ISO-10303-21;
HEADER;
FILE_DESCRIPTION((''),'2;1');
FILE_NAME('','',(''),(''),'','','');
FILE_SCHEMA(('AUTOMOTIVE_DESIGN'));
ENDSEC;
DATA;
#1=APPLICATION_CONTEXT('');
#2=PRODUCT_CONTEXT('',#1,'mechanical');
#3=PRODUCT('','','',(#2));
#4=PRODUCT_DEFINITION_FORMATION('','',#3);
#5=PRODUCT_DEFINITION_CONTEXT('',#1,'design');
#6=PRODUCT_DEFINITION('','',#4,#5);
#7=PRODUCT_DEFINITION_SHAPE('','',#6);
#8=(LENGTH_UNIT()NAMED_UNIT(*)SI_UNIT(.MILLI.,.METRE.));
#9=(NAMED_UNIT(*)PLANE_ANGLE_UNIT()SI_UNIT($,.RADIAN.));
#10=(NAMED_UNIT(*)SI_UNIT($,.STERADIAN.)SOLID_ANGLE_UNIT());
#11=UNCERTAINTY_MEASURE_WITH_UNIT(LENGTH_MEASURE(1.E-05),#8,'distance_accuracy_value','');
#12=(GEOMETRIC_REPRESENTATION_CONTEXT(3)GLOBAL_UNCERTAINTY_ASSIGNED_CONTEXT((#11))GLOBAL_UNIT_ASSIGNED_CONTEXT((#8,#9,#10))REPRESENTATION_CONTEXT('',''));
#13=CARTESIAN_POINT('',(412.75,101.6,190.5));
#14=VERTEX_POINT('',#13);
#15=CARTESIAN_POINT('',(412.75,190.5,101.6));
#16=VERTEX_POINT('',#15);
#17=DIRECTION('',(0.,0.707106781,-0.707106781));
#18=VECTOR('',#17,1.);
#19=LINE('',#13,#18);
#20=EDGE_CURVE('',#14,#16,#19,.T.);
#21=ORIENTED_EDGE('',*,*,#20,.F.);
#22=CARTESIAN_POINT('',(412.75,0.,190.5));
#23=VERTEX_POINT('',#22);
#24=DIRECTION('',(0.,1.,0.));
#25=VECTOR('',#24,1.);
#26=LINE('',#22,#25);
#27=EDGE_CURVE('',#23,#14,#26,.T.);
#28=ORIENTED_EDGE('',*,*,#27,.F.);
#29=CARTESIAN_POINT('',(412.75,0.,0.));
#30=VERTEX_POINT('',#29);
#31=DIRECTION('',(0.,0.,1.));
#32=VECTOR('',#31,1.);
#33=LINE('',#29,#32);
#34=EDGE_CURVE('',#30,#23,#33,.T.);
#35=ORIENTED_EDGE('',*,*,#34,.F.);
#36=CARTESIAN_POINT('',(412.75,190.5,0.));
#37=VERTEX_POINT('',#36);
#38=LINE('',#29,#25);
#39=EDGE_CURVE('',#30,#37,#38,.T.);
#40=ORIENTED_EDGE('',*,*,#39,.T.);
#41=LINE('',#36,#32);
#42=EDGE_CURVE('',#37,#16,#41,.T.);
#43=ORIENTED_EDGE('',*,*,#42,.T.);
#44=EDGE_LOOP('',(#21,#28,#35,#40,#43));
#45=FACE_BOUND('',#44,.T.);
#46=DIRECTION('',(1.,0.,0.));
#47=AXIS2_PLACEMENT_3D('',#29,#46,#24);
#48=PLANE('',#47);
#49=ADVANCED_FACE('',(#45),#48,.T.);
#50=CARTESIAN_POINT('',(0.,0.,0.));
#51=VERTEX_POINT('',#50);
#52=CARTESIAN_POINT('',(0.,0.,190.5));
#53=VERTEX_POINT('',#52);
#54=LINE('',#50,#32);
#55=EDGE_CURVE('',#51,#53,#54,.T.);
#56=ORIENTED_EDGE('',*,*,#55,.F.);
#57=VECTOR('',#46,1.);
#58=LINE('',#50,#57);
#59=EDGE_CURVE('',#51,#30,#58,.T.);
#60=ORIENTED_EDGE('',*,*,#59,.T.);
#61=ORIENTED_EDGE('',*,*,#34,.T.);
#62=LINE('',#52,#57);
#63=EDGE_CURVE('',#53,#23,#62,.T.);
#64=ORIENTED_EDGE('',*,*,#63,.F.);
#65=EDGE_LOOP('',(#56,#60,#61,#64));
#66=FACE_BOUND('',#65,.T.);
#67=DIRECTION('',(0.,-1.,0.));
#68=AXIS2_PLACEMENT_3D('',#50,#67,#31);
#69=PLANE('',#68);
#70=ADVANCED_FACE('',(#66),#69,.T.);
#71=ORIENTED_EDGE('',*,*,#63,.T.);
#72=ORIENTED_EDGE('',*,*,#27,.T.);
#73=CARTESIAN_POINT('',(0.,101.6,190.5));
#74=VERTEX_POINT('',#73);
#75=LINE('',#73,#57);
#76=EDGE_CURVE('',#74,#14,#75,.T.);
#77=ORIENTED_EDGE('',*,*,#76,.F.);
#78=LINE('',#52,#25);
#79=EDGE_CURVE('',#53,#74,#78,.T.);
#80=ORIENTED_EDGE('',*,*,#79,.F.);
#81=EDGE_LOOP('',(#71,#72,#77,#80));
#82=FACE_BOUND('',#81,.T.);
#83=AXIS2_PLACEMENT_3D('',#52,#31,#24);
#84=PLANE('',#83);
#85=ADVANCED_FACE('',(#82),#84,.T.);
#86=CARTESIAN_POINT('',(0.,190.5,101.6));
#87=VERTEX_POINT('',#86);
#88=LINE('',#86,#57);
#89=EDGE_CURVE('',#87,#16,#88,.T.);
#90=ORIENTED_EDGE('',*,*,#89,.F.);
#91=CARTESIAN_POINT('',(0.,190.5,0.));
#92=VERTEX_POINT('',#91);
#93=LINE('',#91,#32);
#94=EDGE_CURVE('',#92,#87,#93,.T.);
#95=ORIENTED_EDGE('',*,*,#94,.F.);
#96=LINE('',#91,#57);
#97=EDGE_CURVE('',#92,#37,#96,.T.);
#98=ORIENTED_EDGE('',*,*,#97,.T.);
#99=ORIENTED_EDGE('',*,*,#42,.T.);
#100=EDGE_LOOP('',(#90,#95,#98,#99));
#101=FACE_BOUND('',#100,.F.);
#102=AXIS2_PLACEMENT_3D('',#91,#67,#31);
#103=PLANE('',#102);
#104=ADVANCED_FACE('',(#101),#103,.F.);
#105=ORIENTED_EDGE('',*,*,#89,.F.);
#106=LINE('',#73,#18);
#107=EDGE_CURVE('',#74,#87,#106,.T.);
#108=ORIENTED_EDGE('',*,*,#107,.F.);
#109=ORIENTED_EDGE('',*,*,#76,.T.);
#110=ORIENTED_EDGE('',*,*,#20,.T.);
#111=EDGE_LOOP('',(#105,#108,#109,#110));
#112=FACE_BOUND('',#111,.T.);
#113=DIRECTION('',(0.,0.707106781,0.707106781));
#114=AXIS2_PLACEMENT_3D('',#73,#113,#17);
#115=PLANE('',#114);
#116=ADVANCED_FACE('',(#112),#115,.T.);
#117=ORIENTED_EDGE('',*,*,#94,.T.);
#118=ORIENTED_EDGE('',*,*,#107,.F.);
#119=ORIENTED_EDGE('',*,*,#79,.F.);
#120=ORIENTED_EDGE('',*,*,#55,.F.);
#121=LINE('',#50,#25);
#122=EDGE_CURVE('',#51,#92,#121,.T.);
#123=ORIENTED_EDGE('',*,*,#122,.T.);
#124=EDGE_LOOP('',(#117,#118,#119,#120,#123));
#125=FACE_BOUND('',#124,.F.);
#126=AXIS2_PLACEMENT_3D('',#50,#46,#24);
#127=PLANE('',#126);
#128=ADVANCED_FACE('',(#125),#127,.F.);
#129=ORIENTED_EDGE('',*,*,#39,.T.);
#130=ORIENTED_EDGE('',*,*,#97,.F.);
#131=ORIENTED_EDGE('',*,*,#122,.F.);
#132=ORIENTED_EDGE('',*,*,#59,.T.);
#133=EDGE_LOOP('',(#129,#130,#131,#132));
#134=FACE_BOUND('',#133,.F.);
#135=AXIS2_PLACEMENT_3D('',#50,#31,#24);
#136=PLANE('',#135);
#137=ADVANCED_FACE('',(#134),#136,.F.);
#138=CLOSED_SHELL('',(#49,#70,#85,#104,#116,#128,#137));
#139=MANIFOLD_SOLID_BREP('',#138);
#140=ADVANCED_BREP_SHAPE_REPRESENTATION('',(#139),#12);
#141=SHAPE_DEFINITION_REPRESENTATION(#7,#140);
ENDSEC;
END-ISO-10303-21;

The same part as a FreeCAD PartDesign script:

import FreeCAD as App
import Part
import Sketcher
Q = App.Units.Quantity


def add_polygon(sketch, points):
    """Adds a closed chain of lines whose ends are joined by coincident constraints."""
    first, n = sketch.GeometryCount, len(points)
    for a, b in zip(points, points[1:] + points[:1]):
        sketch.addGeometry(Part.LineSegment(App.Vector(*a, 0), App.Vector(*b, 0)), False)
    for i in range(n):
        sketch.addConstraint(Sketcher.Constraint("Coincident", first + i, 2, first + (i + 1) % n, 1))

doc = App.newDocument("Part")
body = doc.addObject("PartDesign::Body", "Body")

# Sketch on YZ plane
sketch1 = body.newObject("Sketcher::SketchObject", "Sketch")
sketch1.AttachmentSupport = (doc.getObject("YZ_Plane"), [""])
sketch1.MapMode = "FlatFace"
add_polygon(sketch1, [(0, 190), (0, 0), (190, 0), (190, 102), (102, 190)])  # lines 0-4
sketch1.addConstraint([
    Sketcher.Constraint("Vertical", 0),
    Sketcher.Constraint("Horizontal", 1),
    Sketcher.Constraint("Vertical", 2),
    Sketcher.Constraint("Horizontal", 4),
    Sketcher.Constraint("Coincident", 0, 2, -1, 1),
    Sketcher.Constraint("Equal", 1, 0),
    Sketcher.Constraint("Equal", 4, 2),
    Sketcher.Constraint("DistanceX", 4, 2, 4, 1, Q("4 in")),
    Sketcher.Constraint("DistanceX", 1, 1, 1, 2, Q("7.5 in")),
])
pad1 = body.newObject("PartDesign::Pad", "Pad")
pad1.Profile = sketch1
pad1.Length = Q("16.25 in")

doc.recompute()
